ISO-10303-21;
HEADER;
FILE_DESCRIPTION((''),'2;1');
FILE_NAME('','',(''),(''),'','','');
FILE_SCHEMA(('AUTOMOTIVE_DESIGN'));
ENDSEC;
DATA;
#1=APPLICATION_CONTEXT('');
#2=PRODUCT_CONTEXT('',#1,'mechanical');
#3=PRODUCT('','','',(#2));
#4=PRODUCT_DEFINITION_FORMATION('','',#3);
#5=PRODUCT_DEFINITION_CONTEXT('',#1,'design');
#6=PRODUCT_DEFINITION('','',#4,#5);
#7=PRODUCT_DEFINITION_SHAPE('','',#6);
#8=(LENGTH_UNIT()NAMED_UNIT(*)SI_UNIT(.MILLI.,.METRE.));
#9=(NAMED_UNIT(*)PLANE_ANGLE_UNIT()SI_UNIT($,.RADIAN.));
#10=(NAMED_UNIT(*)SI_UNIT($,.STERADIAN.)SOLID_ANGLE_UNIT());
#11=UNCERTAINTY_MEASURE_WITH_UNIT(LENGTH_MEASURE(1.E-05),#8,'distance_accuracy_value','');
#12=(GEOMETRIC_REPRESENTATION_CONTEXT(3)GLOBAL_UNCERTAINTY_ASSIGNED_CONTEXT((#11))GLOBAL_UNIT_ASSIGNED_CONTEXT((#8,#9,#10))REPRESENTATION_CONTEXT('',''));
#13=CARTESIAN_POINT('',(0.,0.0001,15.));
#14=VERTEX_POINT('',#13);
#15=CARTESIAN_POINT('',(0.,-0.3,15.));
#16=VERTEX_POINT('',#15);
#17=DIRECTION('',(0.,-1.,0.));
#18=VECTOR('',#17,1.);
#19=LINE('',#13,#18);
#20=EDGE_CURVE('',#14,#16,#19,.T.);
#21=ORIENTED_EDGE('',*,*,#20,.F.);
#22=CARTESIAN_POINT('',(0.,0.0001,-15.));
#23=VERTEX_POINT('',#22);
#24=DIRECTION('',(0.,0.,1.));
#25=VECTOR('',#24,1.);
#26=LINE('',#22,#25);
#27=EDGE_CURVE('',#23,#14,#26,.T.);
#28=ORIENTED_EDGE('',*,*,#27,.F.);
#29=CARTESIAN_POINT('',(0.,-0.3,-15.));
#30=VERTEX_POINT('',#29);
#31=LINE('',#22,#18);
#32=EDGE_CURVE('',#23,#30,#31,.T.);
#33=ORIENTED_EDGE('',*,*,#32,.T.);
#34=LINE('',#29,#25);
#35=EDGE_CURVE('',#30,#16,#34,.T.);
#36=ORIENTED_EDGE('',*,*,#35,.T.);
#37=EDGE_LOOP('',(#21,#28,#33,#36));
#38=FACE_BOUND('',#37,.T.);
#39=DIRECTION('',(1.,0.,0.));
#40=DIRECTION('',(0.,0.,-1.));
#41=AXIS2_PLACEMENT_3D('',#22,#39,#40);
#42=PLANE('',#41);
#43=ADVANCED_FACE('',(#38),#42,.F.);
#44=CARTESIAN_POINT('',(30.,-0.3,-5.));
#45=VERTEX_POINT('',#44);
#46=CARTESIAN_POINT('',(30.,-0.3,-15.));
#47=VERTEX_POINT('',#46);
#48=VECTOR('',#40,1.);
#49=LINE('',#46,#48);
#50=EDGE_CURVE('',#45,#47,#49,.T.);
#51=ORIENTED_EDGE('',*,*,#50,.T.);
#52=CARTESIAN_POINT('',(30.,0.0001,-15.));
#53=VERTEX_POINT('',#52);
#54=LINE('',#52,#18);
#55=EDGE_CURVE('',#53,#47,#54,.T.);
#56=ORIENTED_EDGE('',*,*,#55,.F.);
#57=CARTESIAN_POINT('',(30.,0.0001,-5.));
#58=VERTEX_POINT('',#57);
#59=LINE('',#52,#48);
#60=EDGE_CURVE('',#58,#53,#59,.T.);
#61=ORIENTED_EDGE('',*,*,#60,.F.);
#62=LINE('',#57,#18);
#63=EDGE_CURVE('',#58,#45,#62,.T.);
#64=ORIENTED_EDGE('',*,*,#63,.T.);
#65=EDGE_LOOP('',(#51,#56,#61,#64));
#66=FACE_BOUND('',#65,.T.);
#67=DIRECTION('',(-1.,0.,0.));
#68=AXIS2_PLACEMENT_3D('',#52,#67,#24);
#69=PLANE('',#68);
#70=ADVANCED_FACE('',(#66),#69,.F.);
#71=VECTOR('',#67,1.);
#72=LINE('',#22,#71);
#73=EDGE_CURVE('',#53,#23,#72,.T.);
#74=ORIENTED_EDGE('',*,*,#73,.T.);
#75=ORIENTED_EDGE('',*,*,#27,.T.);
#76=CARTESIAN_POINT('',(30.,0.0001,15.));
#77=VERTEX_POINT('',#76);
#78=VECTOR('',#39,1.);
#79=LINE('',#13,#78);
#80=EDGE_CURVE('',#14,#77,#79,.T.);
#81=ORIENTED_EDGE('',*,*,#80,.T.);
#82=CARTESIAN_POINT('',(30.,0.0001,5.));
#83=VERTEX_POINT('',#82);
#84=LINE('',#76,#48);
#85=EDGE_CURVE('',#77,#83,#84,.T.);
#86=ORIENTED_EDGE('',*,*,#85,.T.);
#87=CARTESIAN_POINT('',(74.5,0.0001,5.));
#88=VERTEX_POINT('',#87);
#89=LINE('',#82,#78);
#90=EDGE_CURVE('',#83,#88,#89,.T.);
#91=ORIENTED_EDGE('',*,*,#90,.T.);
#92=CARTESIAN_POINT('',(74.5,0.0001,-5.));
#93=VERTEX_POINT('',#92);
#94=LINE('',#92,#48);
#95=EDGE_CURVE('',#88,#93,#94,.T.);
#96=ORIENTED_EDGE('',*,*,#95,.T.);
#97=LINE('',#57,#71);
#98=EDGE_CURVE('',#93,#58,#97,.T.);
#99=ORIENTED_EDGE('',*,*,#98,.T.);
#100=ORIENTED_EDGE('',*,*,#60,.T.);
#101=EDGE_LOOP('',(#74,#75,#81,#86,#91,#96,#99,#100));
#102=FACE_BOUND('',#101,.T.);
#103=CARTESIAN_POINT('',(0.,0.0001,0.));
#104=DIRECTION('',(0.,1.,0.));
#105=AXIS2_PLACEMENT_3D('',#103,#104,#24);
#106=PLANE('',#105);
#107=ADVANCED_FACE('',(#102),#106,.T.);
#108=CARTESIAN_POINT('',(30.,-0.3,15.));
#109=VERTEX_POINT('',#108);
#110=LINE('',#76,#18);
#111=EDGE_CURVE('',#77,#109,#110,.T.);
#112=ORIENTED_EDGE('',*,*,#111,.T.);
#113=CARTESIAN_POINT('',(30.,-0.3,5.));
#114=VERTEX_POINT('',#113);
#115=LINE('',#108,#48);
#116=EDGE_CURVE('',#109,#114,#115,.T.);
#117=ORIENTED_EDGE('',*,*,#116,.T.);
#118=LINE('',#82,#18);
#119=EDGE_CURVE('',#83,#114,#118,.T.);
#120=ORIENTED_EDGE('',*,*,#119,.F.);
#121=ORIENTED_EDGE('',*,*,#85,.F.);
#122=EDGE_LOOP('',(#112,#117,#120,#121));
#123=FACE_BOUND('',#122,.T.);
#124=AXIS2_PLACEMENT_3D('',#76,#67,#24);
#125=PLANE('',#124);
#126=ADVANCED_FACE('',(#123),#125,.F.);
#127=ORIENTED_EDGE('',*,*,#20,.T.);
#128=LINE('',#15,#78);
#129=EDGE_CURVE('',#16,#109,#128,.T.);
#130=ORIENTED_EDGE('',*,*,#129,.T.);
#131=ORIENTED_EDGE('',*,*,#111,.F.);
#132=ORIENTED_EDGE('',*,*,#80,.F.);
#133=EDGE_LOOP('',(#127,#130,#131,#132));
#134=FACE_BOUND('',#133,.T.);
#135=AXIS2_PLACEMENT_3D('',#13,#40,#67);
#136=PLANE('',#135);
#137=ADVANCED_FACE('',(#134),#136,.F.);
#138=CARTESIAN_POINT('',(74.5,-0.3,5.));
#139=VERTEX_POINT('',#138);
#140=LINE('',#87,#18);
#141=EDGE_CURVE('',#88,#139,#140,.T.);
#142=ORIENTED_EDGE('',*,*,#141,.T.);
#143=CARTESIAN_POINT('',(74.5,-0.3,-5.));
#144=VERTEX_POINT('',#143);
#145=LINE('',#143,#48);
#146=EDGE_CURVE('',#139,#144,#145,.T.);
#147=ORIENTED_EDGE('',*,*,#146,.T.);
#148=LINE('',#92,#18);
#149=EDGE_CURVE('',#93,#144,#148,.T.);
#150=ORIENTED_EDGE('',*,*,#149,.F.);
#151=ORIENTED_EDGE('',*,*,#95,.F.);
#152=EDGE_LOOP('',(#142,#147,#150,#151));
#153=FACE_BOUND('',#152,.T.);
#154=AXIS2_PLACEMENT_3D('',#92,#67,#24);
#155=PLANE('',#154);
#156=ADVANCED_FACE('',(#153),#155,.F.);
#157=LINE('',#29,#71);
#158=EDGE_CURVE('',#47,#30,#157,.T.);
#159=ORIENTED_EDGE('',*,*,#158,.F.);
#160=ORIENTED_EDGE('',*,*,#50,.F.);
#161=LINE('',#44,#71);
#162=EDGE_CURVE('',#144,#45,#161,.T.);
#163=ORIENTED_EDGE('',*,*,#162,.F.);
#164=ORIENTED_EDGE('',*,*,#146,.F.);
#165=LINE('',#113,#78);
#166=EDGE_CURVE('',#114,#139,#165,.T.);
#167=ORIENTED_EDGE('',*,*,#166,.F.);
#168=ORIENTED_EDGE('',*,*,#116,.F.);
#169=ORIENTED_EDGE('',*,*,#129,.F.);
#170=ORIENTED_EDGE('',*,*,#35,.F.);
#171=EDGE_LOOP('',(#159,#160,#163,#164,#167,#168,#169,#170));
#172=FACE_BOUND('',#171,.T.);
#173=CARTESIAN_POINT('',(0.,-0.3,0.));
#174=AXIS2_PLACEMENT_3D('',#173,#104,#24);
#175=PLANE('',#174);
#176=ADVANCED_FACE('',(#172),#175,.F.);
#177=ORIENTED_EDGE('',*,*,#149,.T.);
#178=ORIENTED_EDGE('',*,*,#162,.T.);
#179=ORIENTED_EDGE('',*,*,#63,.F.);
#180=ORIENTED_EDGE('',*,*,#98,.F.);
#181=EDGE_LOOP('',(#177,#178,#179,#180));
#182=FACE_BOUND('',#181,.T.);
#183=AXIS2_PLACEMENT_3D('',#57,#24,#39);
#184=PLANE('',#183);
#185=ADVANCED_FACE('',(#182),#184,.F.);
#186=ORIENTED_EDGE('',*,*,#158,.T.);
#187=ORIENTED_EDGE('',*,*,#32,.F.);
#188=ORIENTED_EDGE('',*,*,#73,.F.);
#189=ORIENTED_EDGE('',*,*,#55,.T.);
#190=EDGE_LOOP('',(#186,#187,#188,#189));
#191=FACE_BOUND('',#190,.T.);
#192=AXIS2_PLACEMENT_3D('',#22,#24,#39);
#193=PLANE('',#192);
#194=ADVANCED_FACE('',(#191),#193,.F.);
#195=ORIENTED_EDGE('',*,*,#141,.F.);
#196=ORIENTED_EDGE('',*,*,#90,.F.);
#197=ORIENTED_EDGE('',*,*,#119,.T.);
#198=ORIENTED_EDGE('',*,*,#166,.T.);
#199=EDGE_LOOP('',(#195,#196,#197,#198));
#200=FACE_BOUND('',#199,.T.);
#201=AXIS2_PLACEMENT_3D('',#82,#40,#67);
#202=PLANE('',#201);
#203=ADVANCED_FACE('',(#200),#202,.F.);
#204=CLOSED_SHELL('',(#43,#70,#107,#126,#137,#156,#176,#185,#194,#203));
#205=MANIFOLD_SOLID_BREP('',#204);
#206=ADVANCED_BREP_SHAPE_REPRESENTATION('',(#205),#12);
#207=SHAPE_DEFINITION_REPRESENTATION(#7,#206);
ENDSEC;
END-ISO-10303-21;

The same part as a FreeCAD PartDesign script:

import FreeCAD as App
import Part
import Sketcher

V = App.Vector


def add_polygon(sketch, points):
    """Adds a closed chain of lines whose ends are joined by coincident constraints."""
    first, n = sketch.GeometryCount, len(points)
    for a, b in zip(points, points[1:] + points[:1]):
        sketch.addGeometry(Part.LineSegment(App.Vector(*a, 0), App.Vector(*b, 0)), False)
    for i in range(n):
        sketch.addConstraint(Sketcher.Constraint("Coincident", first + i, 2, first + (i + 1) % n, 1))

doc = App.newDocument("Part")
body = doc.addObject("PartDesign::Body", "Body")

sketch1 = body.newObject("Sketcher::SketchObject", "Sketch")
sketch1.AttachmentSupport = (doc.getObject("XZ_Plane"), [""])
sketch1.MapMode = "FlatFace"
add_polygon(sketch1, [(0, 15), (30, 15), (30, 5), (74, 5), (74, -5), (30, -5), (30, -15), (0, -15)])
sketch1.addConstraint(Sketcher.Constraint("Horizontal", 0))
sketch1.addConstraint(Sketcher.Constraint("Vertical", 1))
sketch1.addConstraint(Sketcher.Constraint("Horizontal", 2))
sketch1.addConstraint(Sketcher.Constraint("Vertical", 3))
sketch1.addConstraint(Sketcher.Constraint("Horizontal", 4))
sketch1.addConstraint(Sketcher.Constraint("Vertical", 5))
sketch1.addConstraint(Sketcher.Constraint("Horizontal", 6))
sketch1.addConstraint(Sketcher.Constraint("Vertical", 7))
sketch1.addConstraint(Sketcher.Constraint("Symmetric", 6, 2, 7, 2, -1, 1))
sketch1.addConstraint(Sketcher.Constraint("Symmetric", 1, 2, 4, 2, -1))
sketch1.addConstraint(Sketcher.Constraint("Equal", 1, 3))
sketch1.addConstraint(Sketcher.Constraint("Equal", 6, 7))
sketch1.addConstraint(Sketcher.Constraint("DistanceX", 0, 1, 0, 2, 30.0))
sketch1.addConstraint(Sketcher.Constraint("DistanceX", 2, 1, 2, 2, 44.5))
pad1 = body.newObject("PartDesign::Pad", "Pad")
pad1.Profile = sketch1
pad1.Type = "TwoLengths"
pad1.Length = 0.0001
pad1.Length2 = 0.3
pad1.Reversed = True

doc.recompute()
